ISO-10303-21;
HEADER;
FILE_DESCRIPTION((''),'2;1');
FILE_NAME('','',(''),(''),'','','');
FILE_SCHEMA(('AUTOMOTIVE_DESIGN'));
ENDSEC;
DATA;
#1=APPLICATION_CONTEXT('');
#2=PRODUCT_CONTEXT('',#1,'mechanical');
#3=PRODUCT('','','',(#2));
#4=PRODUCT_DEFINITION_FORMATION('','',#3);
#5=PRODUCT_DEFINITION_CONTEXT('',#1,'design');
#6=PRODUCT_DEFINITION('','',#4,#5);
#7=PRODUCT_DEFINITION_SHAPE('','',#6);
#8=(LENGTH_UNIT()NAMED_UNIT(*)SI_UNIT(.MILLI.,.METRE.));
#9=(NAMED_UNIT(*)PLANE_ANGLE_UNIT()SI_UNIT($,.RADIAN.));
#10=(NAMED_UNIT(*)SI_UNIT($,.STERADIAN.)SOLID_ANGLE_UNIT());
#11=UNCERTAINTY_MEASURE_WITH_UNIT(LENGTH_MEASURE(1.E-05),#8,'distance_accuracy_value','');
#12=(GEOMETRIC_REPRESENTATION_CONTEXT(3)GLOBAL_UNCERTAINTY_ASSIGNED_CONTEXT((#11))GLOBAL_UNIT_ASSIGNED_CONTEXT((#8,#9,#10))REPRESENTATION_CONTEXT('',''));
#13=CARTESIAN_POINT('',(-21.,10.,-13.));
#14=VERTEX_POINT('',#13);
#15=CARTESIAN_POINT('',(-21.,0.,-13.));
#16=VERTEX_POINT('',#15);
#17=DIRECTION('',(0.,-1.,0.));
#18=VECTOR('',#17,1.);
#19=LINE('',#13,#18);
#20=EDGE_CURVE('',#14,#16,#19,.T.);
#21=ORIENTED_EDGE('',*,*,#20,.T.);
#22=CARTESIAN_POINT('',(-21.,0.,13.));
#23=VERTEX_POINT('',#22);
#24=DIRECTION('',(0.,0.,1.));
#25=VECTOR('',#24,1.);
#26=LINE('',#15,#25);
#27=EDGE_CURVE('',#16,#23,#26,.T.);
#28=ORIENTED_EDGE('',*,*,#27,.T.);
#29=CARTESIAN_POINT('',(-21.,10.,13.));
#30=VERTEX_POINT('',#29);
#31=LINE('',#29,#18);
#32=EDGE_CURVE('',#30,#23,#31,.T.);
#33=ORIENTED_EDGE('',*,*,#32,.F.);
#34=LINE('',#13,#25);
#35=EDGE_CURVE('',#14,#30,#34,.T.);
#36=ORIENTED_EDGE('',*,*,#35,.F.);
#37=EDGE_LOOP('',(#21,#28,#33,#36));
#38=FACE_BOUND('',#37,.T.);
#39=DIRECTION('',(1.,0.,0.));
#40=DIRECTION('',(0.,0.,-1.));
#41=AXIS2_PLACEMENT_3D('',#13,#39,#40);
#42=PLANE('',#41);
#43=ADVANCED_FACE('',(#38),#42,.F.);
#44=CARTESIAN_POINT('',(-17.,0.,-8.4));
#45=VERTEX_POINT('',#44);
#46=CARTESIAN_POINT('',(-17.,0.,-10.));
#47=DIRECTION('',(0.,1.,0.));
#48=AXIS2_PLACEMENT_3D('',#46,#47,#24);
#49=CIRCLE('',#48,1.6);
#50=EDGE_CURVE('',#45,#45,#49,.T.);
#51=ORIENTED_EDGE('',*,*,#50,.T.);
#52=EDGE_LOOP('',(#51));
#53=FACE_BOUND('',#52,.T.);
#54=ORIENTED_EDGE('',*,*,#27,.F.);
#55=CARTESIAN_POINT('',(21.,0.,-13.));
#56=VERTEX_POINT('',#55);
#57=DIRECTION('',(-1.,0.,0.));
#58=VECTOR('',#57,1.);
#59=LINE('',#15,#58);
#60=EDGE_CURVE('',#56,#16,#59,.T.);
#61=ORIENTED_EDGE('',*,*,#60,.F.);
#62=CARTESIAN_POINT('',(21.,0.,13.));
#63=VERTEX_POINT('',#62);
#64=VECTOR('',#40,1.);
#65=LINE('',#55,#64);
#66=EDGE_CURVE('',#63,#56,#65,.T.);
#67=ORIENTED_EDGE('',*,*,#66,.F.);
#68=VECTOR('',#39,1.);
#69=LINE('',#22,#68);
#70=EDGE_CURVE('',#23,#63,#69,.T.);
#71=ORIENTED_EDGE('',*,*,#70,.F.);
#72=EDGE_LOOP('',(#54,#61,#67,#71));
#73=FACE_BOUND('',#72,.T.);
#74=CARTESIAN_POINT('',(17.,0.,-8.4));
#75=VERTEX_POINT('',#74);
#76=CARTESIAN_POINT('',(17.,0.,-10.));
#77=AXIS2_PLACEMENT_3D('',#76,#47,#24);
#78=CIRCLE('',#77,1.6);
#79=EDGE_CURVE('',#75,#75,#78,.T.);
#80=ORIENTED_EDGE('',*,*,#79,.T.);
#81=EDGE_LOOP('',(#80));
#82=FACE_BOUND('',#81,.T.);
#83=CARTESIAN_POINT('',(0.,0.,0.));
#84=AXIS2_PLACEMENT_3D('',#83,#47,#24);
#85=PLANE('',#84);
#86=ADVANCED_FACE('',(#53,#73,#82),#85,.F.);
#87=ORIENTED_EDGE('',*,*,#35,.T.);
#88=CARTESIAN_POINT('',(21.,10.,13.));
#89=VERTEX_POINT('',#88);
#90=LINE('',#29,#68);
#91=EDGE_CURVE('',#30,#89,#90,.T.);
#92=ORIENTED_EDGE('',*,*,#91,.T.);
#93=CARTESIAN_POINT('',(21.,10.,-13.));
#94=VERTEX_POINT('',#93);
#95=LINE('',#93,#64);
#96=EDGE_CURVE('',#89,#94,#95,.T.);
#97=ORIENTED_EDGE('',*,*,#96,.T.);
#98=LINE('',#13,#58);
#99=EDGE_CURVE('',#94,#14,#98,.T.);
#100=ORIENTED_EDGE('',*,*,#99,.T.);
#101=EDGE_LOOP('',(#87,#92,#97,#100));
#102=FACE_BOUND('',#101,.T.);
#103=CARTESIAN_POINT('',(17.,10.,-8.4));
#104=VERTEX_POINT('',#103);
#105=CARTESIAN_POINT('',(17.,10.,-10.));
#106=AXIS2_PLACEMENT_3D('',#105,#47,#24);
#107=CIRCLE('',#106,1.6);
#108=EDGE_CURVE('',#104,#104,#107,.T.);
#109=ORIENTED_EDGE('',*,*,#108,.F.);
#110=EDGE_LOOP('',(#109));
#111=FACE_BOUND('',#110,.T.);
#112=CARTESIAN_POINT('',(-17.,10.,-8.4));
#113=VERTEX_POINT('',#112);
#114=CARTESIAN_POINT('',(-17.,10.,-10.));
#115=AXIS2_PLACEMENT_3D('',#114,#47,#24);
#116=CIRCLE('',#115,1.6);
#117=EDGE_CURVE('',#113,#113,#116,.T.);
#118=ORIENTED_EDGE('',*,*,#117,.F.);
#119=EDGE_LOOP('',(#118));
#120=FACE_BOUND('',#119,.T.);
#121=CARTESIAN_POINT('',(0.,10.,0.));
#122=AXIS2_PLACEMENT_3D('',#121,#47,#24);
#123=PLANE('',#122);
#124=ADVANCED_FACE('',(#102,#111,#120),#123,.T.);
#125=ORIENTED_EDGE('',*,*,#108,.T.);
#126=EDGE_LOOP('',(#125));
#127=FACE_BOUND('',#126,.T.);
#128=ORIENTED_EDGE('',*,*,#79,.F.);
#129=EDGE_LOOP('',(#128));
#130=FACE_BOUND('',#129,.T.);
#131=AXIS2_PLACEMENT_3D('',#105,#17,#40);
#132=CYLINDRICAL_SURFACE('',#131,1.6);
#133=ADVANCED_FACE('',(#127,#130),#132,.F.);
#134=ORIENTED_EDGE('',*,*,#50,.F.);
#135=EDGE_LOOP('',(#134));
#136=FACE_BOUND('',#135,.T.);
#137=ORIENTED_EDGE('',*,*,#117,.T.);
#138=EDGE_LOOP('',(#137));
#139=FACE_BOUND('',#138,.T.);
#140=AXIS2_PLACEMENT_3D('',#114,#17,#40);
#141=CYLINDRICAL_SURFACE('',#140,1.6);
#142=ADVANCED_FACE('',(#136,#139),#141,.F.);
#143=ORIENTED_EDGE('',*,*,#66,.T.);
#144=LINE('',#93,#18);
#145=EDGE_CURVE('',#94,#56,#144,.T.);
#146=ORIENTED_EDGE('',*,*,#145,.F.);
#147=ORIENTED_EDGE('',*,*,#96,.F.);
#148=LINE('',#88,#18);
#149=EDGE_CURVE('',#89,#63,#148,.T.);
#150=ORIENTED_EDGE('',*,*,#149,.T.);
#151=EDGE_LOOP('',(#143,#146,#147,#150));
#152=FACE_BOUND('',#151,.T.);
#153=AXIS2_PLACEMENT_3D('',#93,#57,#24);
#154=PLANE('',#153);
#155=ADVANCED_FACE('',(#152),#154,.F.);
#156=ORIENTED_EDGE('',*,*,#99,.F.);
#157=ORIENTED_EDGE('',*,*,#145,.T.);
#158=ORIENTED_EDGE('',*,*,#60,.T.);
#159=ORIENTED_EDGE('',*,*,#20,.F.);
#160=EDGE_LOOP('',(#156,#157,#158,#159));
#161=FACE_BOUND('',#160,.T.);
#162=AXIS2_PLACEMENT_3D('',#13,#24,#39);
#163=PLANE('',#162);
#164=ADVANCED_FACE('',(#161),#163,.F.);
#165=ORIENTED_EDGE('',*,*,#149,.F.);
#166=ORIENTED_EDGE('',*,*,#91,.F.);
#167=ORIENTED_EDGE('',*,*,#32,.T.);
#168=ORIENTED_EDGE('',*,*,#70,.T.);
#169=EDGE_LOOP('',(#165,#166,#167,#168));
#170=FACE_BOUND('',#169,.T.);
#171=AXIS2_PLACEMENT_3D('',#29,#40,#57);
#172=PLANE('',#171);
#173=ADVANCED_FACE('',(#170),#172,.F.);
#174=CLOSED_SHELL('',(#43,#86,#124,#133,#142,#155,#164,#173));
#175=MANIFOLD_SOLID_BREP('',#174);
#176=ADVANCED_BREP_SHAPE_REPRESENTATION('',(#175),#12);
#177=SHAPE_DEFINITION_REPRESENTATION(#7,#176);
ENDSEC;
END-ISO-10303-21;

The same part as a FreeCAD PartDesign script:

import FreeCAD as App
import Part
import Sketcher
Q = App.Units.Quantity

doc = App.newDocument("Part")
body = doc.addObject("PartDesign::Body", "Body")

sketch1 = body.newObject("Sketcher::SketchObject", "Sketch")
sketch1.AttachmentSupport = (doc.getObject("XZ_Plane"), [""])
sketch1.MapMode = "FlatFace"
sketch1.addGeometry([
    Part.LineSegment(App.Vector(-21, -13, 0), App.Vector(-21, 13, 0)),
    Part.LineSegment(App.Vector(-21, 13, 0), App.Vector(21, 13, 0)),
    Part.LineSegment(App.Vector(21, 13, 0), App.Vector(21, -13, 0)),
    Part.LineSegment(App.Vector(21, -13, 0), App.Vector(-21, -13, 0)),
    Part.Circle(App.Vector(-17, -10, 0), App.Vector(0, 0, 1), 1.6),
    Part.Circle(App.Vector(17, -10, 0), App.Vector(0, 0, 1), 1.6),
], False)
sketch1.addConstraint([
    Sketcher.Constraint("Coincident", 0, 2, 1, 1),
    Sketcher.Constraint("Coincident", 1, 2, 2, 1),
    Sketcher.Constraint("Coincident", 2, 2, 3, 1),
    Sketcher.Constraint("Coincident", 3, 2, 0, 1),
    Sketcher.Constraint("Vertical", 0),
    Sketcher.Constraint("Horizontal", 1),
    Sketcher.Constraint("Vertical", 2),
    Sketcher.Constraint("Horizontal", 3),
    Sketcher.Constraint("Equal", 4, 5),
    Sketcher.Constraint("Symmetric", 0, 2, 2, 2, -1, 1),
    Sketcher.Constraint("Symmetric", 4, 3, 5, 3, -2),
    Sketcher.Constraint("Diameter", 4, Q("3.2 mm")),
    Sketcher.Constraint("DistanceX", 1, 1, 1, 2, Q("42 mm")),
    Sketcher.Constraint("DistanceY", 0, 1, 0, 2, Q("26 mm")),
    Sketcher.Constraint("DistanceX", 4, 3, -1, 1, Q("17 mm")),
    Sketcher.Constraint("DistanceY", 4, 3, -1, 1, Q("10 mm")),
])
pad1 = body.newObject("PartDesign::Pad", "Pad")
pad1.Profile = sketch1
pad1.Length = 10
pad1.Reversed = True

doc.recompute()
